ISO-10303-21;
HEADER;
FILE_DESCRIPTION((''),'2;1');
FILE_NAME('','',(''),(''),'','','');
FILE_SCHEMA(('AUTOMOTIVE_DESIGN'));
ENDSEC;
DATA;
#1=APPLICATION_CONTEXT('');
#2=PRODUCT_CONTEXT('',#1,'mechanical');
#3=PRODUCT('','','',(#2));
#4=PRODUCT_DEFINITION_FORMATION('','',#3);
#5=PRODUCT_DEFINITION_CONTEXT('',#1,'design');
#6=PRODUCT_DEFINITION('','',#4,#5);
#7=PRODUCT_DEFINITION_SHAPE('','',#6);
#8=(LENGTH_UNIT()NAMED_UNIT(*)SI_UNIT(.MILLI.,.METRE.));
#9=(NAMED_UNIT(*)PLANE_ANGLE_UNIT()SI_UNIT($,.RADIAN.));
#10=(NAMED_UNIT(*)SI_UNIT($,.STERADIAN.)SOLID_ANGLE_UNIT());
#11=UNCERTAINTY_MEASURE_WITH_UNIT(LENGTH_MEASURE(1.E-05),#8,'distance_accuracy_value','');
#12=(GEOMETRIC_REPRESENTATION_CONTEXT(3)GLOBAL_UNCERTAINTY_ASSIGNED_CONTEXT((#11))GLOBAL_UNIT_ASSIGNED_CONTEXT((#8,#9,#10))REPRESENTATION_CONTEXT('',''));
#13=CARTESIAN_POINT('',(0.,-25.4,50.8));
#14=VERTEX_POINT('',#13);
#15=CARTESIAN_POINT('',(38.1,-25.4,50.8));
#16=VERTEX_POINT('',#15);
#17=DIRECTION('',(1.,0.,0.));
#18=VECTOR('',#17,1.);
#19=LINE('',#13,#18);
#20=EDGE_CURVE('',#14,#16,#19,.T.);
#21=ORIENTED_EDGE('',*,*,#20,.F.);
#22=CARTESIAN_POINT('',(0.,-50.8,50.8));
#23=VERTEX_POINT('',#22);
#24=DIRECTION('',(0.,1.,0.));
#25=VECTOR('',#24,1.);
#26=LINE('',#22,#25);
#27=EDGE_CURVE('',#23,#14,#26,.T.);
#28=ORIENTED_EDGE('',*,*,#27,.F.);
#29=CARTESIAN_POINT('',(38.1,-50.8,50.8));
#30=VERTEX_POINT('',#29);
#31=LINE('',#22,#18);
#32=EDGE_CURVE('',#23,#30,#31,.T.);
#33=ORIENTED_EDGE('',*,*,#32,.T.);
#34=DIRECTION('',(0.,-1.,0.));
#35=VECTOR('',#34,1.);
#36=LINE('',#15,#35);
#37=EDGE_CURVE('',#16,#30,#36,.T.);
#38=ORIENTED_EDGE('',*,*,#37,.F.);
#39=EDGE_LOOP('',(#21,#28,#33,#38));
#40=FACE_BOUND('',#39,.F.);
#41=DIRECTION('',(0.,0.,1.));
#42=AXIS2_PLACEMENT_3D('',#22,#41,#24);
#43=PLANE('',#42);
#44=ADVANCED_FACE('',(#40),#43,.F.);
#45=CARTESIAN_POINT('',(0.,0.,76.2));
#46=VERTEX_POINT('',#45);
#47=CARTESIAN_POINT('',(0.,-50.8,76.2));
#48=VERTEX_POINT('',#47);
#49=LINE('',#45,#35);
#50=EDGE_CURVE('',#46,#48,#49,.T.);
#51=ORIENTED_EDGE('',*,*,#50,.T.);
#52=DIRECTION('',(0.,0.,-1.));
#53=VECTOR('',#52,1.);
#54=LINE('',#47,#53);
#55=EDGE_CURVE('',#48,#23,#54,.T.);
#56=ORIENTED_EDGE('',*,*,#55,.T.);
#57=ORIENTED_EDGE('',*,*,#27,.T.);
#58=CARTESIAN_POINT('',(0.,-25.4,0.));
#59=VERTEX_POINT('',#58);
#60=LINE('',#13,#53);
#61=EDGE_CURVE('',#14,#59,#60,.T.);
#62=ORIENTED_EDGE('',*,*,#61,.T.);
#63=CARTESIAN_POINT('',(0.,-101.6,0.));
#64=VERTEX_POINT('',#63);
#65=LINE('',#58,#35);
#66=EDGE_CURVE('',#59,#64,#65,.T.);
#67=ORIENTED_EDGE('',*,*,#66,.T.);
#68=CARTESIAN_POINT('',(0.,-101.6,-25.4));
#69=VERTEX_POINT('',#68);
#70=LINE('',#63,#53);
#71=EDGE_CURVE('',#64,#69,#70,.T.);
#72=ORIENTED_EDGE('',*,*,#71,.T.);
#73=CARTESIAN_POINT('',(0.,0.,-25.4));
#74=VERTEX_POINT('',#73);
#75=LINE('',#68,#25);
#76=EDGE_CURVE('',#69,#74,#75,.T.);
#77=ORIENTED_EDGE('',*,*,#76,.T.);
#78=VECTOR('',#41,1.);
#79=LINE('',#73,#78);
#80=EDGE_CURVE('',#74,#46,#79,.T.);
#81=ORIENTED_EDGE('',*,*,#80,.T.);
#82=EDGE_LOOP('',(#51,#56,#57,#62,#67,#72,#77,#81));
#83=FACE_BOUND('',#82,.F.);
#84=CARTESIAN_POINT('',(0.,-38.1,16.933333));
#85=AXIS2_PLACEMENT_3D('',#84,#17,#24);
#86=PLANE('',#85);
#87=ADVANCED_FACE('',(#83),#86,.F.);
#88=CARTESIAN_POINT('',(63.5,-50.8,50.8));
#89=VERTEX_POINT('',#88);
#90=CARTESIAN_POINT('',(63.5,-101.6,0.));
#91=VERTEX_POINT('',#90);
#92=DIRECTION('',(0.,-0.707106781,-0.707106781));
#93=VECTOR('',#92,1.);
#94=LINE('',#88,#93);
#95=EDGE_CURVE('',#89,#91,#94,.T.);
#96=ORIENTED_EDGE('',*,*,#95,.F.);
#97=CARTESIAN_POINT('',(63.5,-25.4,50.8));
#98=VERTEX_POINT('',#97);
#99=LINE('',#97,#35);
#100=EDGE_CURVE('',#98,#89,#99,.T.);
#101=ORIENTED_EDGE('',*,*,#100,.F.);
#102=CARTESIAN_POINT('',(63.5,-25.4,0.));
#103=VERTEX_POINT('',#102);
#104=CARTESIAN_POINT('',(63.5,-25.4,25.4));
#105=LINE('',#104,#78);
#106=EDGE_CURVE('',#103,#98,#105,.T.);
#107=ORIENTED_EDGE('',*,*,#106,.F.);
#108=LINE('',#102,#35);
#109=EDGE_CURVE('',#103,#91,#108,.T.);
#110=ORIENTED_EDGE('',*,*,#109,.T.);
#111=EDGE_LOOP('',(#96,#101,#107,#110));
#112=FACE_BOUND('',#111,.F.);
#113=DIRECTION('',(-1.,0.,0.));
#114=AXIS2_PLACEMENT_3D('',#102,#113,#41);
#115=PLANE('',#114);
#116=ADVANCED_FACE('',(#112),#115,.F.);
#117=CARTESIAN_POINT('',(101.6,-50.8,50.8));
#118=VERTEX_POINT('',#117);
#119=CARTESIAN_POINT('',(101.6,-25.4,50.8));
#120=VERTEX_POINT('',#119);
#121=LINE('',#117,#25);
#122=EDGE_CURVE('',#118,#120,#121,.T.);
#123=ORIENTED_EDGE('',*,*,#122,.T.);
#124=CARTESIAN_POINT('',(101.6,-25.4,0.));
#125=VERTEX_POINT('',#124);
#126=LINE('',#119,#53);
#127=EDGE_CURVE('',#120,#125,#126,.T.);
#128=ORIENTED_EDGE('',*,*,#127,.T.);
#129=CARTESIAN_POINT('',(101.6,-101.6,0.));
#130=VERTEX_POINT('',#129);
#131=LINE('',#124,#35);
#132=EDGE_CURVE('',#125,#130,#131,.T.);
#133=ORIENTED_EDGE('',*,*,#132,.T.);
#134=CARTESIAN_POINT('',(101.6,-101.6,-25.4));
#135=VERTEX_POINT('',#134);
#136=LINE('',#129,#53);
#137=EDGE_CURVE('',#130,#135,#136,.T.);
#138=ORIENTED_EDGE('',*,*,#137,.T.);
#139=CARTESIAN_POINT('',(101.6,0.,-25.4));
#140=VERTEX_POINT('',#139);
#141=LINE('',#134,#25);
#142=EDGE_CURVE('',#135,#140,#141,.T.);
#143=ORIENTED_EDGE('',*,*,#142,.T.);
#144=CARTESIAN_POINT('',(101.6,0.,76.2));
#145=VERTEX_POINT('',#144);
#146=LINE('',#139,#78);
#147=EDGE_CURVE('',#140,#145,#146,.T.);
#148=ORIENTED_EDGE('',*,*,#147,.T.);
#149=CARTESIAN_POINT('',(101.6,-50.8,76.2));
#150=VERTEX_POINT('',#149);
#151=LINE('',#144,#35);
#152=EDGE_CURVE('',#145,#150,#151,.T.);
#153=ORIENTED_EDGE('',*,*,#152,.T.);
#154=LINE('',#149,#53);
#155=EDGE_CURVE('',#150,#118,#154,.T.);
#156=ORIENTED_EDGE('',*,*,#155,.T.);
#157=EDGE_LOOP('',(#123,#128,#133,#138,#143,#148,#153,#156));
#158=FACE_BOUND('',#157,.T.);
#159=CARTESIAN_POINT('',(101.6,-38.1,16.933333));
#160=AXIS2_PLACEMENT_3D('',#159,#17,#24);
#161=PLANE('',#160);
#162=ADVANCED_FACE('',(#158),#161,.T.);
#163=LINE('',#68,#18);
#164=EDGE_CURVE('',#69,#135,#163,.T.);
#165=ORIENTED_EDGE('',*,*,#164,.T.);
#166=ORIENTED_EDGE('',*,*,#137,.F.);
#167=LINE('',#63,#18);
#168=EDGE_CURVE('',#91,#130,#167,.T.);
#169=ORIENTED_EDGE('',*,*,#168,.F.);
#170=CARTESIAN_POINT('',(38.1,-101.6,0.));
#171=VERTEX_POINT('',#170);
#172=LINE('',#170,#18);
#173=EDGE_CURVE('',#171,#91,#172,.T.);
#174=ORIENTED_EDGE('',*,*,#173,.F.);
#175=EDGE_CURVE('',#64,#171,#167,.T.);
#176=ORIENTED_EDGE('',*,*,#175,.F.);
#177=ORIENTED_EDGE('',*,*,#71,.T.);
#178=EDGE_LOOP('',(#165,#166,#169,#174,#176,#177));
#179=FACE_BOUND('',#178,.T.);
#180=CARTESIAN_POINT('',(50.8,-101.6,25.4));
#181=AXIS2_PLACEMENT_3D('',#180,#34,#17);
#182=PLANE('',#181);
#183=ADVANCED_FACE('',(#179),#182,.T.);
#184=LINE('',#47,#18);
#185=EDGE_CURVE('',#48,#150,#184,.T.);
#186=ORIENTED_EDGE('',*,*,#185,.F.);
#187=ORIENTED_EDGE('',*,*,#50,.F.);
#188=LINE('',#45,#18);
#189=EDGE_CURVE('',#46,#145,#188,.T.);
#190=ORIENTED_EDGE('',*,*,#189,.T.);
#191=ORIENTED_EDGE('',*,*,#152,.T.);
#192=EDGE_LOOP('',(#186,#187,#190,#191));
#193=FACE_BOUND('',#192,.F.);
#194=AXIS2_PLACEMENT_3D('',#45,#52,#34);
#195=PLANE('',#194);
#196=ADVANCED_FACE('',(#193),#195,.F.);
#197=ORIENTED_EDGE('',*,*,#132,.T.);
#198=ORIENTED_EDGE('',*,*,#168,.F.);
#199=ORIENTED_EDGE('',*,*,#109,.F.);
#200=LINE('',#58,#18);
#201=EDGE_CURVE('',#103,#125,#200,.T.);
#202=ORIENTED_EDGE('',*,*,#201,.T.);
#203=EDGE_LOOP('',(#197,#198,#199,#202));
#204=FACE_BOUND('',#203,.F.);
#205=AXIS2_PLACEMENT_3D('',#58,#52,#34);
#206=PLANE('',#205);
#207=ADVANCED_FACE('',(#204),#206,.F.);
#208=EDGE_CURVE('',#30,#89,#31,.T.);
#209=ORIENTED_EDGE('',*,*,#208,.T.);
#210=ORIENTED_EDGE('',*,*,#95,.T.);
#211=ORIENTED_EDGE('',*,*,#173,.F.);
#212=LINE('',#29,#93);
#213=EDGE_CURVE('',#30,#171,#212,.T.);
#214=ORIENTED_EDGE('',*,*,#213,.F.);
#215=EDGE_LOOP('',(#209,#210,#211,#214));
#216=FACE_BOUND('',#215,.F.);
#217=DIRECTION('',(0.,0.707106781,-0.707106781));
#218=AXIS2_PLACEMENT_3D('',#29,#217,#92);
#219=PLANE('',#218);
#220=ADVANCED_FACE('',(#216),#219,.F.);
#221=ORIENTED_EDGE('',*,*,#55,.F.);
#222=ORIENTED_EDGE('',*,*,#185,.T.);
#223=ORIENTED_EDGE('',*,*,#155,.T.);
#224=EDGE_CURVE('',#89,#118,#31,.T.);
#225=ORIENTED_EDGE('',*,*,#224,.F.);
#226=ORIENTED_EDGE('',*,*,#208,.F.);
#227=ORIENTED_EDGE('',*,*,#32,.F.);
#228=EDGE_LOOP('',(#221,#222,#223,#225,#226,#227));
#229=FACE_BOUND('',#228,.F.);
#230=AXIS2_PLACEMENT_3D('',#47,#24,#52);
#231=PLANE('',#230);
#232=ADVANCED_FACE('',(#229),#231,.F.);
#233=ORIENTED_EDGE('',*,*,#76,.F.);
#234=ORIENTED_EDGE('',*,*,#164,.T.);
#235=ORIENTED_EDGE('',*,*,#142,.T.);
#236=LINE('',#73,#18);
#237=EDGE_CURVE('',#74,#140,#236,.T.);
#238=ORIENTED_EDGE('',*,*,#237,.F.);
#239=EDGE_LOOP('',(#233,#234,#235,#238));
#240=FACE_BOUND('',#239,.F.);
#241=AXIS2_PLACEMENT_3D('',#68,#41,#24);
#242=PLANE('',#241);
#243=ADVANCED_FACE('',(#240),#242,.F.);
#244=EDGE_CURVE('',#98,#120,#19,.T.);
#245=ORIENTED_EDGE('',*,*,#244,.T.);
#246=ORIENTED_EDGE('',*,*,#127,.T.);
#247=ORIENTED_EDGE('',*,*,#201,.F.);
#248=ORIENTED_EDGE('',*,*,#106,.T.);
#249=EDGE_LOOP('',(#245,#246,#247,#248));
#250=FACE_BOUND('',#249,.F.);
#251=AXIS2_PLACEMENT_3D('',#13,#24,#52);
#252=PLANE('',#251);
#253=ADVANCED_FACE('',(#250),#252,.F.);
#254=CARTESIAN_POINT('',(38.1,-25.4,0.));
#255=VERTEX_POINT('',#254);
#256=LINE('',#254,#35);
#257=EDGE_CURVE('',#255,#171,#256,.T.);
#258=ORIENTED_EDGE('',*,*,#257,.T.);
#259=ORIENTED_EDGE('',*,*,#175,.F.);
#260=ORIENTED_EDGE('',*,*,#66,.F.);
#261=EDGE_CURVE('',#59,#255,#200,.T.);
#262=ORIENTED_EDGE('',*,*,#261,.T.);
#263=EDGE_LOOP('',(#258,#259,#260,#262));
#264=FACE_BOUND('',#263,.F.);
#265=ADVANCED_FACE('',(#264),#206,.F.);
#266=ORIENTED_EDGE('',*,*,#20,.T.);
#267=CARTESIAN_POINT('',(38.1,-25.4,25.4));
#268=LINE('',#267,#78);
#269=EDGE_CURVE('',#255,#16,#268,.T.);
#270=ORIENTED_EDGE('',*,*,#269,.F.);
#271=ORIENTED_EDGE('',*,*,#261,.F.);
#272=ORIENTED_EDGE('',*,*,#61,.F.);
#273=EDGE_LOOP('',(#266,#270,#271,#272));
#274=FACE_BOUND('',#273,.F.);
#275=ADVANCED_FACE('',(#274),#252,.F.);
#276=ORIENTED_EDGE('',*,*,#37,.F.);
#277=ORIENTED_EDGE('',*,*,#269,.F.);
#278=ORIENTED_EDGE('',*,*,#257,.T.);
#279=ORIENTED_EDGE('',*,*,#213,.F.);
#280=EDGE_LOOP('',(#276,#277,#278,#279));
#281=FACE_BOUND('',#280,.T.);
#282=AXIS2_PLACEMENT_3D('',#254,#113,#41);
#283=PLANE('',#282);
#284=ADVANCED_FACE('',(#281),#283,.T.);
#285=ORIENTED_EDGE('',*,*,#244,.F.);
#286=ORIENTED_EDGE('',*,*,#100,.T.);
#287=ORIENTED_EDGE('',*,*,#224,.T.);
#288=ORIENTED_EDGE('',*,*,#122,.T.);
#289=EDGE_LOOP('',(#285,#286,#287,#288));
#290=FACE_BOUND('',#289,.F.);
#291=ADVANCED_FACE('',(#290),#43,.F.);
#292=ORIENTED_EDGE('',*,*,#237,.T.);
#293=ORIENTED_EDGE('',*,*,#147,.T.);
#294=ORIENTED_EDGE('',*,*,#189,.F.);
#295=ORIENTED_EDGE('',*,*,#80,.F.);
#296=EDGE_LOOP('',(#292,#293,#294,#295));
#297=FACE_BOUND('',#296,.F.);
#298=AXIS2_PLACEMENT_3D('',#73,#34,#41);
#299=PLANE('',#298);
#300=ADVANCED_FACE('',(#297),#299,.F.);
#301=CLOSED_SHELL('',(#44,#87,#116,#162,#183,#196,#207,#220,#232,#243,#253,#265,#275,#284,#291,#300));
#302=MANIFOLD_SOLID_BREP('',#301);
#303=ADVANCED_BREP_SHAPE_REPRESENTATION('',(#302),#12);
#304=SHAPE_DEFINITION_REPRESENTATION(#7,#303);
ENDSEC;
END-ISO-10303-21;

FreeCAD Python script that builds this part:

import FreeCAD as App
import Part
import Sketcher
from FreeCAD import Vector
Q = App.Units.Quantity


def add_polygon(sketch, points):
    """Adds a closed chain of lines whose ends are joined by coincident constraints."""
    first, n = sketch.GeometryCount, len(points)
    for a, b in zip(points, points[1:] + points[:1]):
        sketch.addGeometry(Part.LineSegment(App.Vector(*a, 0), App.Vector(*b, 0)), False)
    for i in range(n):
        sketch.addConstraint(Sketcher.Constraint("Coincident", first + i, 2, first + (i + 1) % n, 1))

doc = App.newDocument("Part")
body = doc.addObject("PartDesign::Body", "Body")

sketch1 = body.newObject("Sketcher::SketchObject", "Sketch")
sketch1.AttachmentSupport = (doc.getObject("YZ_Plane"), [""])
sketch1.MapMode = "FlatFace"
add_polygon(sketch1, [(0, -25), (0, 76), (-51, 76), (-51, 51), (-25, 51), (-25, 0), (-102, 0), (-102, -25)])
sketch1.addConstraint([
    Sketcher.Constraint("Vertical", 0),
    Sketcher.Constraint("Horizontal", 1),
    Sketcher.Constraint("Vertical", 2),
    Sketcher.Constraint("Horizontal", 3),
    Sketcher.Constraint("Vertical", 4),
    Sketcher.Constraint("Horizontal", 5),
    Sketcher.Constraint("Vertical", 6),
    Sketcher.Constraint("Horizontal", 7),
    Sketcher.Constraint("PointOnObject", 0, 2, -2),
    Sketcher.Constraint("PointOnObject", 4, 2, -1),
    Sketcher.Constraint("Equal", 7, 0),
    Sketcher.Constraint("Equal", 3, 2),
    Sketcher.Constraint("Equal", 1, 4),
    Sketcher.Constraint("Equal", 2, 6),
    Sketcher.Constraint("DistanceX", 1, 2, 1, 1, Q("2 in")),
    Sketcher.Constraint("DistanceX", 3, 1, 3, 2, Q("1 in")),
])
pad1 = body.newObject("PartDesign::Pad", "Pad")
pad1.Profile = sketch1
pad1.Length = Q("4 in")

sketch2 = body.newObject("Sketcher::SketchObject", "Sketch001")
sketch2.AttachmentSupport = (doc.getObject("XZ_Plane"), [""])
sketch2.MapMode = "FlatFace"
sketch2.AttachmentOffset = App.Placement(Vector(0, 0, 1 * 25.4), App.Rotation())
add_polygon(sketch2, [(38, 51), (38, 0), (64, 0), (64, 51)])
sketch2.addConstraint([
    Sketcher.Constraint("Vertical", 0),
    Sketcher.Constraint("Horizontal", 1),
    Sketcher.Constraint("Vertical", 2),
    Sketcher.Constraint("Horizontal", 3),
    Sketcher.Constraint("PointOnObject", 0, 2, -1),
    Sketcher.Constraint("DistanceX", 1, 1, 1, 2, Q("1 in")),
    Sketcher.Constraint("DistanceY", 0, 2, 0, 1, Q("2 in")),
    Sketcher.Constraint("DistanceX", -1, 1, 0, 2, Q("1.5 in")),
])
pad2 = body.newObject("PartDesign::Pad", "Pad001")
pad2.Profile = sketch2
pad2.Length = Q("3 in")

sketch3 = body.newObject("Sketcher::SketchObject", "Sketch002")
sketch3.AttachmentSupport = (doc.getObject("YZ_Plane"), [""])
sketch3.MapMode = "FlatFace"
sketch3.AttachmentOffset = App.Placement(Vector(0, 0, 1.5 * 25.4), App.Rotation())
add_polygon(sketch3, [(-102, 51), (-51, 51), (-102, 0)])
sketch3.addConstraint([
    Sketcher.Constraint("Horizontal", 0),
    Sketcher.Constraint("Vertical", 2),
    Sketcher.Constraint("PointOnObject", 1, 2, -1),
    Sketcher.Constraint("Equal", 0, 2),
    Sketcher.Constraint("DistanceX", 0, 1, 0, 2, Q("2 in")),
    Sketcher.Constraint("DistanceX", 0, 2, -1, 1, Q("2 in")),
])
pocket1 = body.newObject("PartDesign::Pocket", "Pocket")
pocket1.Profile = sketch3
pocket1.Length = Q("1 in")
pocket1.Reversed = True

doc.recompute()
